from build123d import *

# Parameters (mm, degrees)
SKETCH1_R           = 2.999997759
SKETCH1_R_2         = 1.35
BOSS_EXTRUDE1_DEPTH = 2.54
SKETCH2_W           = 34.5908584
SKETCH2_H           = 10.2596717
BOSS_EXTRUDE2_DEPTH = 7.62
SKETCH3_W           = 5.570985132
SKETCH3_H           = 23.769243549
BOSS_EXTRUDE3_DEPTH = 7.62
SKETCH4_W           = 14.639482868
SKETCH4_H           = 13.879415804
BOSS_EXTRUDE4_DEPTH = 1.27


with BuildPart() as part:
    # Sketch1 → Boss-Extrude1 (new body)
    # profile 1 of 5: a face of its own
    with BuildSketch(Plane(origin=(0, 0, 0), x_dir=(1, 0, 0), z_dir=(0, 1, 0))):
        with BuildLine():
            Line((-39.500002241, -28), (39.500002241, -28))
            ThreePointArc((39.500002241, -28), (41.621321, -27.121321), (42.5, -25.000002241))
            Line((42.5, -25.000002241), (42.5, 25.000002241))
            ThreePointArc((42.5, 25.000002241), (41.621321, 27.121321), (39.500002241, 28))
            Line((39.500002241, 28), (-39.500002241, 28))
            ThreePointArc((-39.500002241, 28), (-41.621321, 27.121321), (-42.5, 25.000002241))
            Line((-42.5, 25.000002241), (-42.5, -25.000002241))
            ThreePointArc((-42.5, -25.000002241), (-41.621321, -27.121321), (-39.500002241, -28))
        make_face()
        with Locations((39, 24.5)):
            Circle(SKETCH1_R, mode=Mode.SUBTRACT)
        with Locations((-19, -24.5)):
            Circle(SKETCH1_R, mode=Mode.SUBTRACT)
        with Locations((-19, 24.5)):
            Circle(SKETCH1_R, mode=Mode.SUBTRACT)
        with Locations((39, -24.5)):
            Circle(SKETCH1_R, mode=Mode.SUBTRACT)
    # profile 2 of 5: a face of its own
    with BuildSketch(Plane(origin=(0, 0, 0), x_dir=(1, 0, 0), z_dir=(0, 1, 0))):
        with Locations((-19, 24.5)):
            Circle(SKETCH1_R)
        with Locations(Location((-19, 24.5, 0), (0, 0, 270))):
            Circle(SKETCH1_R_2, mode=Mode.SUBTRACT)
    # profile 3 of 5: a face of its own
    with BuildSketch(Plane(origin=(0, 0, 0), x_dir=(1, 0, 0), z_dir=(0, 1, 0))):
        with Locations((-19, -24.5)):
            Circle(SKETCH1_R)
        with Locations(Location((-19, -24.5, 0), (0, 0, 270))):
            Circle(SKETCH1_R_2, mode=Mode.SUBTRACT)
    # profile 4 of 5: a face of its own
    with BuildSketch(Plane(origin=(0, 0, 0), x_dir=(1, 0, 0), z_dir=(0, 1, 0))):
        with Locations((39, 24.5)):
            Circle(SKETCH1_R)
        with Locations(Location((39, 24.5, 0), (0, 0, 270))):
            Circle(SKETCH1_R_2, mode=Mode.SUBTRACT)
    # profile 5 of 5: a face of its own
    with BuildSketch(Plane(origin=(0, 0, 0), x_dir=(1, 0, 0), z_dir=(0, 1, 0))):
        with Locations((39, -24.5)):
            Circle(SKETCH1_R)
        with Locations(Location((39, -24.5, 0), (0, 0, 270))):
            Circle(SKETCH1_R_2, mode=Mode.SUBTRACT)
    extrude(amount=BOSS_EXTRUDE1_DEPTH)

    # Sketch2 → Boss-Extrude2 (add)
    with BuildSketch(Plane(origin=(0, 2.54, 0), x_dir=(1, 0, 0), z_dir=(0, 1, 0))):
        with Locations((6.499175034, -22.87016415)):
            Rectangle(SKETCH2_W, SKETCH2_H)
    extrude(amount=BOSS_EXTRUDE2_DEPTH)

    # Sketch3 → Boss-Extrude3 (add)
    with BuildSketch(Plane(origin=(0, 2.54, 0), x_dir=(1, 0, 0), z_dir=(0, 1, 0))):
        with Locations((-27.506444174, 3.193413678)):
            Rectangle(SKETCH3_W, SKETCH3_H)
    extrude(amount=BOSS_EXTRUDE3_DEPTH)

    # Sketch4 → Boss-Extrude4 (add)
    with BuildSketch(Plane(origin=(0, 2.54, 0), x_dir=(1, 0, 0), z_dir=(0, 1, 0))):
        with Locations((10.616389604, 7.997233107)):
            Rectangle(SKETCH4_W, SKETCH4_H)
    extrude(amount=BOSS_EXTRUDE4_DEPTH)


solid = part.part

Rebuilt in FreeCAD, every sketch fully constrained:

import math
import FreeCAD as App
import Part
import Sketcher
from FreeCAD import Vector
Q = App.Units.Quantity


def add_polygon(sketch, points):
    """Adds a closed chain of lines whose ends are joined by coincident constraints."""
    first, n = sketch.GeometryCount, len(points)
    for a, b in zip(points, points[1:] + points[:1]):
        sketch.addGeometry(Part.LineSegment(App.Vector(*a, 0), App.Vector(*b, 0)), False)
    for i in range(n):
        sketch.addConstraint(Sketcher.Constraint("Coincident", first + i, 2, first + (i + 1) % n, 1))

doc = App.newDocument("Part")
body = doc.addObject("PartDesign::Body", "Body")

# Sketch on XZ plane
sketch1 = doc.addObject("Sketcher::SketchObject", "Sketch")
body.addObject(sketch1)
sketch1.AttachmentSupport = (doc.XZ_Plane, [""])
sketch1.MapMode = "FlatFace"
sketch1.addGeometry(Part.LineSegment(Vector(-39.5, 28, 0), Vector(39.5, 28, 0)), False)
sketch1.addGeometry(Part.ArcOfCircle(Part.Circle(Vector(39.5, 25, 0), Vector(0, 0, 1), 3), math.radians(0), math.radians(90)), False)
sketch1.addGeometry(Part.LineSegment(Vector(42.5, 25, 0), Vector(42.5, -25, 0)), False)
sketch1.addGeometry(Part.ArcOfCircle(Part.Circle(Vector(39.5, -25, 0), Vector(0, 0, 1), 3), math.radians(-90), math.radians(0)), False)
sketch1.addGeometry(Part.LineSegment(Vector(39.5, -28, 0), Vector(-39.5, -28, 0)), False)
sketch1.addGeometry(Part.ArcOfCircle(Part.Circle(Vector(-39.5, -25, 0), Vector(0, 0, 1), 3), math.radians(180), math.radians(270)), False)
sketch1.addGeometry(Part.LineSegment(Vector(-42.5, -25, 0), Vector(-42.5, 25, 0)), False)
sketch1.addGeometry(Part.ArcOfCircle(Part.Circle(Vector(-39.5, 25, 0), Vector(0, 0, 1), 3), math.radians(90), math.radians(180)), False)
sketch1.addGeometry(Part.Circle(Vector(-19, 24.5, 0), Vector(0, 0, 1), 1.4), False)
sketch1.addGeometry(Part.Circle(Vector(39, 24.5, 0), Vector(0, 0, 1), 1.4), False)
sketch1.addGeometry(Part.Circle(Vector(-19, -24.5, 0), Vector(0, 0, 1), 1.4), False)
sketch1.addGeometry(Part.Circle(Vector(39, -24.5, 0), Vector(0, 0, 1), 1.4), False)
sketch1.addConstraint(Sketcher.Constraint("Tangent", 0, 2, 1, 2))
sketch1.addConstraint(Sketcher.Constraint("Tangent", 1, 1, 2, 1))
sketch1.addConstraint(Sketcher.Constraint("Tangent", 2, 2, 3, 2))
sketch1.addConstraint(Sketcher.Constraint("Tangent", 3, 1, 4, 1))
sketch1.addConstraint(Sketcher.Constraint("Tangent", 4, 2, 5, 2))
sketch1.addConstraint(Sketcher.Constraint("Tangent", 5, 1, 6, 1))
sketch1.addConstraint(Sketcher.Constraint("Tangent", 6, 2, 7, 2))
sketch1.addConstraint(Sketcher.Constraint("Tangent", 7, 1, 0, 1))
sketch1.addConstraint(Sketcher.Constraint("Horizontal", 0))
sketch1.addConstraint(Sketcher.Constraint("Vertical", 2))
sketch1.addConstraint(Sketcher.Constraint("Horizontal", 4))
sketch1.addConstraint(Sketcher.Constraint("Vertical", 6))
sketch1.addConstraint(Sketcher.Constraint("Equal", 1, 3))
sketch1.addConstraint(Sketcher.Constraint("Equal", 3, 5))
sketch1.addConstraint(Sketcher.Constraint("Equal", 5, 7))
sketch1.addConstraint(Sketcher.Constraint("Equal", 8, 9))
sketch1.addConstraint(Sketcher.Constraint("Equal", 9, 10))
sketch1.addConstraint(Sketcher.Constraint("Equal", 10, 11))
sketch1.addConstraint(Sketcher.Constraint("Symmetric", 1, 3, 5, 3, -1, 1))
sketch1.addConstraint(Sketcher.Constraint("Symmetric", 8, 3, 10, 3, -1))
sketch1.addConstraint(Sketcher.Constraint("Symmetric", 9, 3, 11, 3, -1))
sketch1.addConstraint(Sketcher.Constraint("Horizontal", 8, 3, 9, 3))
sketch1.addConstraint(Sketcher.Constraint("Diameter", 8, 2.7))
sketch1.addConstraint(Sketcher.Constraint("Radius", 1, 2.999998))
sketch1.addConstraint(Sketcher.Constraint("DistanceX", 8, 3, -1, 1, 19.0))
sketch1.addConstraint(Sketcher.Constraint("DistanceY", -1, 1, 8, 3, 24.5))
sketch1.addConstraint(Sketcher.Constraint("DistanceX", -1, 1, 9, 3, 39.0))
sketch1.addConstraint(Sketcher.Constraint("DistanceY", -1, 1, 0, 2, 28.0))
sketch1.addConstraint(Sketcher.Constraint("DistanceX", -1, 1, 1, 1, 42.5))
pad1 = doc.addObject("PartDesign::Pad", "Pad")
body.addObject(pad1)
pad1.Profile = sketch1
pad1.Length = Q("0.1 in")
pad1.Reversed = True

# Sketch on XZ plane
sketch2 = doc.addObject("Sketcher::SketchObject", "Sketch001")
body.addObject(sketch2)
sketch2.AttachmentSupport = (doc.XZ_Plane, [""])
sketch2.MapMode = "FlatFace"
sketch2.AttachmentOffset = App.Placement(Vector(0, 0, -0.1 * 25.4), App.Rotation())
add_polygon(sketch2, [(-11, 18), (-11, 28), (24, 28), (24, 18)])  # lines 0-3
sketch2.addConstraint(Sketcher.Constraint("Vertical", 0))
sketch2.addConstraint(Sketcher.Constraint("Horizontal", 1))
sketch2.addConstraint(Sketcher.Constraint("Vertical", 2))
sketch2.addConstraint(Sketcher.Constraint("Horizontal", 3))
sketch2.addConstraint(Sketcher.Constraint("DistanceX", 1, 1, 1, 2, 34.590858))
sketch2.addConstraint(Sketcher.Constraint("DistanceY", 0, 1, 0, 2, 10.259672))
sketch2.addConstraint(Sketcher.Constraint("DistanceY", -1, 1, 0, 2, 28.0))
sketch2.addConstraint(Sketcher.Constraint("DistanceX", 0, 2, -1, 1, 10.796254))
pad2 = doc.addObject("PartDesign::Pad", "Pad001")
body.addObject(pad2)
pad2.Profile = sketch2
pad2.Length = Q("0.3 in")
pad2.Reversed = True

# Sketch on XZ plane
sketch3 = doc.addObject("Sketcher::SketchObject", "Sketch002")
body.addObject(sketch3)
sketch3.AttachmentSupport = (doc.XZ_Plane, [""])
sketch3.MapMode = "FlatFace"
sketch3.AttachmentOffset = App.Placement(Vector(0, 0, -0.1 * 25.4), App.Rotation())
add_polygon(sketch3, [(-30, -15), (-30, 9), (-25, 9), (-25, -15)])  # lines 0-3
sketch3.addConstraint(Sketcher.Constraint("Vertical", 0))
sketch3.addConstraint(Sketcher.Constraint("Horizontal", 1))
sketch3.addConstraint(Sketcher.Constraint("Vertical", 2))
sketch3.addConstraint(Sketcher.Constraint("Horizontal", 3))
sketch3.addConstraint(Sketcher.Constraint("DistanceX", 1, 1, 1, 2, 5.570985))
sketch3.addConstraint(Sketcher.Constraint("DistanceY", 0, 1, 0, 2, 23.769244))
sketch3.addConstraint(Sketcher.Constraint("DistanceY", -1, 1, 0, 2, 8.691208))
sketch3.addConstraint(Sketcher.Constraint("DistanceX", 1, 2, -1, 1, 24.720952))
pad3 = doc.addObject("PartDesign::Pad", "Pad002")
body.addObject(pad3)
pad3.Profile = sketch3
pad3.Length = Q("0.3 in")
pad3.Reversed = True

# Sketch on XZ plane
sketch4 = doc.addObject("Sketcher::SketchObject", "Sketch003")
body.addObject(sketch4)
sketch4.AttachmentSupport = (doc.XZ_Plane, [""])
sketch4.MapMode = "FlatFace"
sketch4.AttachmentOffset = App.Placement(Vector(0, 0, -0.1 * 25.4), App.Rotation())
add_polygon(sketch4, [(3, -15), (3, -1), (18, -1), (18, -15)])  # lines 0-3
sketch4.addConstraint(Sketcher.Constraint("Vertical", 0))
sketch4.addConstraint(Sketcher.Constraint("Horizontal", 1))
sketch4.addConstraint(Sketcher.Constraint("Vertical", 2))
sketch4.addConstraint(Sketcher.Constraint("Horizontal", 3))
sketch4.addConstraint(Sketcher.Constraint("DistanceX", 1, 1, 1, 2, 14.639483))
sketch4.addConstraint(Sketcher.Constraint("DistanceY", 0, 1, 0, 2, 13.879416))
sketch4.addConstraint(Sketcher.Constraint("DistanceX", -1, 1, 0, 2, 3.296648))
sketch4.addConstraint(Sketcher.Constraint("DistanceY", 2, 2, -1, 1, 14.936941))
pad4 = doc.addObject("PartDesign::Pad", "Pad003")
body.addObject(pad4)
pad4.Profile = sketch4
pad4.Length = Q("0.05 in")
pad4.Reversed = True

doc.recompute()
